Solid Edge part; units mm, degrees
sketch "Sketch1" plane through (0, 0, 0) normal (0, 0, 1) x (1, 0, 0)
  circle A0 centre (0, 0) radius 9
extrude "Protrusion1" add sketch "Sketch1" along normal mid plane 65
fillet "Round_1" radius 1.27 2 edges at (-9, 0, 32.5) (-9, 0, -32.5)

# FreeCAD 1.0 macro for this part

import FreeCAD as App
import Part
import Sketcher

V = App.Vector
Q = App.Units.Quantity


def edges_at(feature, points):
    """Names of the edges that pass closest to the given points."""
    edges = feature.Shape.Edges
    near = lambda p: min(range(len(edges)), key=lambda i: edges[i].distToShape(Part.Vertex(*p))[0])
    return sorted({f"Edge{near(p) + 1}" for p in points})

doc = App.newDocument("Part")
params = doc.addObject("Spreadsheet::Sheet", "Params")
for row, (alias, value) in enumerate([
    ("sketch1_diameter", "18 mm"),
    ("pad1_length", "65 mm"),
    ("fillet_radius", "1.27 mm"),
], start=1):
    params.set(f"A{row}", alias)
    params.set(f"B{row}", "=" + value)
    params.setAlias(f"B{row}", alias)

body = doc.addObject("PartDesign::Body", "Body")

# Sketch on XY plane
sketch1 = body.newObject("Sketcher::SketchObject", "Sketch")
sketch1.AttachmentSupport = (doc.getObject("XY_Plane"), [""])
sketch1.MapMode = "FlatFace"
sketch1.addGeometry(Part.Circle(V(0, 0, 0), V(0, 0, 1), 9), False)
sketch1.addConstraint(Sketcher.Constraint("Coincident", 0, 3, -1, 1))
sketch1.addConstraint(Sketcher.Constraint("Diameter", 0, Q("18 mm")))
sketch1.setExpression("Constraints[1]", "Params.sketch1_diameter")
pad1 = body.newObject("PartDesign::Pad", "Pad")
pad1.Profile = sketch1
pad1.setExpression("Length", "Params.pad1_length")
pad1.Midplane = True
doc.recompute()

fillet = body.newObject("PartDesign::Fillet", "Fillet")
fillet.Base = (pad1, edges_at(pad1, [(-9, 0, 32.5), (-9, 0, -32.5)]))
fillet.setExpression("Radius", "Params.fillet_radius")

doc.recompute()
